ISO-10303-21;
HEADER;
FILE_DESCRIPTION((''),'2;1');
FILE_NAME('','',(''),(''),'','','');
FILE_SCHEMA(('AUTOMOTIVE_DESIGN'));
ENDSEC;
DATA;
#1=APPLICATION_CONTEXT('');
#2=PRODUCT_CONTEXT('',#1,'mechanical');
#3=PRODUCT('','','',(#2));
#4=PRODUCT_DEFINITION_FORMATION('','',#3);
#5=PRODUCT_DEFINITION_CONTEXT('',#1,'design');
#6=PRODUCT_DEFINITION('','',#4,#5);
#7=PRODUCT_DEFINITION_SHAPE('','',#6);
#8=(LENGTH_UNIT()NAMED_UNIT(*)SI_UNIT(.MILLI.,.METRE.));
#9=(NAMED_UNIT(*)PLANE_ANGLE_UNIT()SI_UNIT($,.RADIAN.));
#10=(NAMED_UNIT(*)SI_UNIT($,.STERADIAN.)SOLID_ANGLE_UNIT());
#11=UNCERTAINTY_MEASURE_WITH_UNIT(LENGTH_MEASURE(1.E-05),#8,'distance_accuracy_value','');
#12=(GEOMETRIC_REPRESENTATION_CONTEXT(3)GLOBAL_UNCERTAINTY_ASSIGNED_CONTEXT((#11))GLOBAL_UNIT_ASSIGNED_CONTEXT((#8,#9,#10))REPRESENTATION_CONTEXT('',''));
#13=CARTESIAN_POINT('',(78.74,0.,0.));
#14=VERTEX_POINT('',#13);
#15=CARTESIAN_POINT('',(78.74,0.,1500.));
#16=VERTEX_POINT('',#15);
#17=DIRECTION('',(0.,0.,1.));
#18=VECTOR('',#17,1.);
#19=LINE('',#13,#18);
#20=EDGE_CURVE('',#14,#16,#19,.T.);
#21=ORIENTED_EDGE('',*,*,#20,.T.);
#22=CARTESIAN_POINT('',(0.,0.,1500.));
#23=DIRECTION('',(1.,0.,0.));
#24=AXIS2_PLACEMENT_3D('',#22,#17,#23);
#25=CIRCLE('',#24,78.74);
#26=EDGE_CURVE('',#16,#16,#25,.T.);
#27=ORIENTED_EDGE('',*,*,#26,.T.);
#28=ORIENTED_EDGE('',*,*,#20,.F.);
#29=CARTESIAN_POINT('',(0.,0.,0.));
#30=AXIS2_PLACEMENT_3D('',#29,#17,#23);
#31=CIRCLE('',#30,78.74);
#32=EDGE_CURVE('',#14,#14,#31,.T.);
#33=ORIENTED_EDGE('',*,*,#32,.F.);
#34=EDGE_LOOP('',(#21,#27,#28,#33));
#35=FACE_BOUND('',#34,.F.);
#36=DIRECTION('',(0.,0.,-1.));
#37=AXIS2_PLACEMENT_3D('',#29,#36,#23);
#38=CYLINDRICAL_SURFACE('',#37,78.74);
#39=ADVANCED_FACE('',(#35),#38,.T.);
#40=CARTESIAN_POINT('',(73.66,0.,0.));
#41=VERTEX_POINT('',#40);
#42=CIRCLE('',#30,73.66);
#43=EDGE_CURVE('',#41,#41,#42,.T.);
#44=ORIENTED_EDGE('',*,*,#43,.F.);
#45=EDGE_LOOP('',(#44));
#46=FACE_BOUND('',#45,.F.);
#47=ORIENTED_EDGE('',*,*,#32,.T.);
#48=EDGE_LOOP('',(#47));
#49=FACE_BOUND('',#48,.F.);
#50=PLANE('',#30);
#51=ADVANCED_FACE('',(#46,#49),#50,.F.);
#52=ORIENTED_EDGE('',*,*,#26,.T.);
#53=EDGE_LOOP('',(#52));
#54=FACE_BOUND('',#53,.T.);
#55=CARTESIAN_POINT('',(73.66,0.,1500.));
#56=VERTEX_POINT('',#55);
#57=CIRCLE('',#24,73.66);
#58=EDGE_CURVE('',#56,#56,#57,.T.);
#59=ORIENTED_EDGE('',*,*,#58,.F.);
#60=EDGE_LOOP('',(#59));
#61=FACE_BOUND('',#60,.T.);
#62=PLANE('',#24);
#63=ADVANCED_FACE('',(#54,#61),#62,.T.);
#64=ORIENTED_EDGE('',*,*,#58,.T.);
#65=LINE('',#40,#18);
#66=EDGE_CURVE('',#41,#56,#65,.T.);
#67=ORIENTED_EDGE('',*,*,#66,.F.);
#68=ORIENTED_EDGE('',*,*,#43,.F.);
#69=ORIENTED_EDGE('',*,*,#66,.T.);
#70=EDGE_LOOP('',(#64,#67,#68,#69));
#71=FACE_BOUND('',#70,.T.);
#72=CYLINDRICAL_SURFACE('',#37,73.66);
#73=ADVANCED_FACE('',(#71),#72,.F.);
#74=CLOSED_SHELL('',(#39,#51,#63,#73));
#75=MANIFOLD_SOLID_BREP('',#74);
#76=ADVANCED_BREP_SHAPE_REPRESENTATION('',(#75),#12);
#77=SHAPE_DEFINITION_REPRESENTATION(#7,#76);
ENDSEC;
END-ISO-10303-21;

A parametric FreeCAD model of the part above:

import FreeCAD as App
import Part
import Sketcher

V = App.Vector
Q = App.Units.Quantity

doc = App.newDocument("Part")
body = doc.addObject("PartDesign::Body", "Body")

# Sketch on XY plane
sketch1 = body.newObject("Sketcher::SketchObject", "Sketch")
sketch1.AttachmentSupport = (doc.getObject("XY_Plane"), [""])
sketch1.MapMode = "FlatFace"
sketch1.addGeometry([
    Part.Circle(V(0, 0, 0), V(0, 0, 1), 78.74),
    Part.Circle(V(0, 0, 0), V(0, 0, 1), 73.66),
], False)
sketch1.addConstraint([
    Sketcher.Constraint("Coincident", 0, 3, -1, 1),
    Sketcher.Constraint("Coincident", 1, 3, -1, 1),
    Sketcher.Constraint("Diameter", 1, Q("5.8 in")),
    Sketcher.Constraint("Diameter", 0, Q("6.2 in")),
])
pad1 = body.newObject("PartDesign::Pad", "Pad")
pad1.Profile = sketch1
pad1.Length = 1500

doc.recompute()
